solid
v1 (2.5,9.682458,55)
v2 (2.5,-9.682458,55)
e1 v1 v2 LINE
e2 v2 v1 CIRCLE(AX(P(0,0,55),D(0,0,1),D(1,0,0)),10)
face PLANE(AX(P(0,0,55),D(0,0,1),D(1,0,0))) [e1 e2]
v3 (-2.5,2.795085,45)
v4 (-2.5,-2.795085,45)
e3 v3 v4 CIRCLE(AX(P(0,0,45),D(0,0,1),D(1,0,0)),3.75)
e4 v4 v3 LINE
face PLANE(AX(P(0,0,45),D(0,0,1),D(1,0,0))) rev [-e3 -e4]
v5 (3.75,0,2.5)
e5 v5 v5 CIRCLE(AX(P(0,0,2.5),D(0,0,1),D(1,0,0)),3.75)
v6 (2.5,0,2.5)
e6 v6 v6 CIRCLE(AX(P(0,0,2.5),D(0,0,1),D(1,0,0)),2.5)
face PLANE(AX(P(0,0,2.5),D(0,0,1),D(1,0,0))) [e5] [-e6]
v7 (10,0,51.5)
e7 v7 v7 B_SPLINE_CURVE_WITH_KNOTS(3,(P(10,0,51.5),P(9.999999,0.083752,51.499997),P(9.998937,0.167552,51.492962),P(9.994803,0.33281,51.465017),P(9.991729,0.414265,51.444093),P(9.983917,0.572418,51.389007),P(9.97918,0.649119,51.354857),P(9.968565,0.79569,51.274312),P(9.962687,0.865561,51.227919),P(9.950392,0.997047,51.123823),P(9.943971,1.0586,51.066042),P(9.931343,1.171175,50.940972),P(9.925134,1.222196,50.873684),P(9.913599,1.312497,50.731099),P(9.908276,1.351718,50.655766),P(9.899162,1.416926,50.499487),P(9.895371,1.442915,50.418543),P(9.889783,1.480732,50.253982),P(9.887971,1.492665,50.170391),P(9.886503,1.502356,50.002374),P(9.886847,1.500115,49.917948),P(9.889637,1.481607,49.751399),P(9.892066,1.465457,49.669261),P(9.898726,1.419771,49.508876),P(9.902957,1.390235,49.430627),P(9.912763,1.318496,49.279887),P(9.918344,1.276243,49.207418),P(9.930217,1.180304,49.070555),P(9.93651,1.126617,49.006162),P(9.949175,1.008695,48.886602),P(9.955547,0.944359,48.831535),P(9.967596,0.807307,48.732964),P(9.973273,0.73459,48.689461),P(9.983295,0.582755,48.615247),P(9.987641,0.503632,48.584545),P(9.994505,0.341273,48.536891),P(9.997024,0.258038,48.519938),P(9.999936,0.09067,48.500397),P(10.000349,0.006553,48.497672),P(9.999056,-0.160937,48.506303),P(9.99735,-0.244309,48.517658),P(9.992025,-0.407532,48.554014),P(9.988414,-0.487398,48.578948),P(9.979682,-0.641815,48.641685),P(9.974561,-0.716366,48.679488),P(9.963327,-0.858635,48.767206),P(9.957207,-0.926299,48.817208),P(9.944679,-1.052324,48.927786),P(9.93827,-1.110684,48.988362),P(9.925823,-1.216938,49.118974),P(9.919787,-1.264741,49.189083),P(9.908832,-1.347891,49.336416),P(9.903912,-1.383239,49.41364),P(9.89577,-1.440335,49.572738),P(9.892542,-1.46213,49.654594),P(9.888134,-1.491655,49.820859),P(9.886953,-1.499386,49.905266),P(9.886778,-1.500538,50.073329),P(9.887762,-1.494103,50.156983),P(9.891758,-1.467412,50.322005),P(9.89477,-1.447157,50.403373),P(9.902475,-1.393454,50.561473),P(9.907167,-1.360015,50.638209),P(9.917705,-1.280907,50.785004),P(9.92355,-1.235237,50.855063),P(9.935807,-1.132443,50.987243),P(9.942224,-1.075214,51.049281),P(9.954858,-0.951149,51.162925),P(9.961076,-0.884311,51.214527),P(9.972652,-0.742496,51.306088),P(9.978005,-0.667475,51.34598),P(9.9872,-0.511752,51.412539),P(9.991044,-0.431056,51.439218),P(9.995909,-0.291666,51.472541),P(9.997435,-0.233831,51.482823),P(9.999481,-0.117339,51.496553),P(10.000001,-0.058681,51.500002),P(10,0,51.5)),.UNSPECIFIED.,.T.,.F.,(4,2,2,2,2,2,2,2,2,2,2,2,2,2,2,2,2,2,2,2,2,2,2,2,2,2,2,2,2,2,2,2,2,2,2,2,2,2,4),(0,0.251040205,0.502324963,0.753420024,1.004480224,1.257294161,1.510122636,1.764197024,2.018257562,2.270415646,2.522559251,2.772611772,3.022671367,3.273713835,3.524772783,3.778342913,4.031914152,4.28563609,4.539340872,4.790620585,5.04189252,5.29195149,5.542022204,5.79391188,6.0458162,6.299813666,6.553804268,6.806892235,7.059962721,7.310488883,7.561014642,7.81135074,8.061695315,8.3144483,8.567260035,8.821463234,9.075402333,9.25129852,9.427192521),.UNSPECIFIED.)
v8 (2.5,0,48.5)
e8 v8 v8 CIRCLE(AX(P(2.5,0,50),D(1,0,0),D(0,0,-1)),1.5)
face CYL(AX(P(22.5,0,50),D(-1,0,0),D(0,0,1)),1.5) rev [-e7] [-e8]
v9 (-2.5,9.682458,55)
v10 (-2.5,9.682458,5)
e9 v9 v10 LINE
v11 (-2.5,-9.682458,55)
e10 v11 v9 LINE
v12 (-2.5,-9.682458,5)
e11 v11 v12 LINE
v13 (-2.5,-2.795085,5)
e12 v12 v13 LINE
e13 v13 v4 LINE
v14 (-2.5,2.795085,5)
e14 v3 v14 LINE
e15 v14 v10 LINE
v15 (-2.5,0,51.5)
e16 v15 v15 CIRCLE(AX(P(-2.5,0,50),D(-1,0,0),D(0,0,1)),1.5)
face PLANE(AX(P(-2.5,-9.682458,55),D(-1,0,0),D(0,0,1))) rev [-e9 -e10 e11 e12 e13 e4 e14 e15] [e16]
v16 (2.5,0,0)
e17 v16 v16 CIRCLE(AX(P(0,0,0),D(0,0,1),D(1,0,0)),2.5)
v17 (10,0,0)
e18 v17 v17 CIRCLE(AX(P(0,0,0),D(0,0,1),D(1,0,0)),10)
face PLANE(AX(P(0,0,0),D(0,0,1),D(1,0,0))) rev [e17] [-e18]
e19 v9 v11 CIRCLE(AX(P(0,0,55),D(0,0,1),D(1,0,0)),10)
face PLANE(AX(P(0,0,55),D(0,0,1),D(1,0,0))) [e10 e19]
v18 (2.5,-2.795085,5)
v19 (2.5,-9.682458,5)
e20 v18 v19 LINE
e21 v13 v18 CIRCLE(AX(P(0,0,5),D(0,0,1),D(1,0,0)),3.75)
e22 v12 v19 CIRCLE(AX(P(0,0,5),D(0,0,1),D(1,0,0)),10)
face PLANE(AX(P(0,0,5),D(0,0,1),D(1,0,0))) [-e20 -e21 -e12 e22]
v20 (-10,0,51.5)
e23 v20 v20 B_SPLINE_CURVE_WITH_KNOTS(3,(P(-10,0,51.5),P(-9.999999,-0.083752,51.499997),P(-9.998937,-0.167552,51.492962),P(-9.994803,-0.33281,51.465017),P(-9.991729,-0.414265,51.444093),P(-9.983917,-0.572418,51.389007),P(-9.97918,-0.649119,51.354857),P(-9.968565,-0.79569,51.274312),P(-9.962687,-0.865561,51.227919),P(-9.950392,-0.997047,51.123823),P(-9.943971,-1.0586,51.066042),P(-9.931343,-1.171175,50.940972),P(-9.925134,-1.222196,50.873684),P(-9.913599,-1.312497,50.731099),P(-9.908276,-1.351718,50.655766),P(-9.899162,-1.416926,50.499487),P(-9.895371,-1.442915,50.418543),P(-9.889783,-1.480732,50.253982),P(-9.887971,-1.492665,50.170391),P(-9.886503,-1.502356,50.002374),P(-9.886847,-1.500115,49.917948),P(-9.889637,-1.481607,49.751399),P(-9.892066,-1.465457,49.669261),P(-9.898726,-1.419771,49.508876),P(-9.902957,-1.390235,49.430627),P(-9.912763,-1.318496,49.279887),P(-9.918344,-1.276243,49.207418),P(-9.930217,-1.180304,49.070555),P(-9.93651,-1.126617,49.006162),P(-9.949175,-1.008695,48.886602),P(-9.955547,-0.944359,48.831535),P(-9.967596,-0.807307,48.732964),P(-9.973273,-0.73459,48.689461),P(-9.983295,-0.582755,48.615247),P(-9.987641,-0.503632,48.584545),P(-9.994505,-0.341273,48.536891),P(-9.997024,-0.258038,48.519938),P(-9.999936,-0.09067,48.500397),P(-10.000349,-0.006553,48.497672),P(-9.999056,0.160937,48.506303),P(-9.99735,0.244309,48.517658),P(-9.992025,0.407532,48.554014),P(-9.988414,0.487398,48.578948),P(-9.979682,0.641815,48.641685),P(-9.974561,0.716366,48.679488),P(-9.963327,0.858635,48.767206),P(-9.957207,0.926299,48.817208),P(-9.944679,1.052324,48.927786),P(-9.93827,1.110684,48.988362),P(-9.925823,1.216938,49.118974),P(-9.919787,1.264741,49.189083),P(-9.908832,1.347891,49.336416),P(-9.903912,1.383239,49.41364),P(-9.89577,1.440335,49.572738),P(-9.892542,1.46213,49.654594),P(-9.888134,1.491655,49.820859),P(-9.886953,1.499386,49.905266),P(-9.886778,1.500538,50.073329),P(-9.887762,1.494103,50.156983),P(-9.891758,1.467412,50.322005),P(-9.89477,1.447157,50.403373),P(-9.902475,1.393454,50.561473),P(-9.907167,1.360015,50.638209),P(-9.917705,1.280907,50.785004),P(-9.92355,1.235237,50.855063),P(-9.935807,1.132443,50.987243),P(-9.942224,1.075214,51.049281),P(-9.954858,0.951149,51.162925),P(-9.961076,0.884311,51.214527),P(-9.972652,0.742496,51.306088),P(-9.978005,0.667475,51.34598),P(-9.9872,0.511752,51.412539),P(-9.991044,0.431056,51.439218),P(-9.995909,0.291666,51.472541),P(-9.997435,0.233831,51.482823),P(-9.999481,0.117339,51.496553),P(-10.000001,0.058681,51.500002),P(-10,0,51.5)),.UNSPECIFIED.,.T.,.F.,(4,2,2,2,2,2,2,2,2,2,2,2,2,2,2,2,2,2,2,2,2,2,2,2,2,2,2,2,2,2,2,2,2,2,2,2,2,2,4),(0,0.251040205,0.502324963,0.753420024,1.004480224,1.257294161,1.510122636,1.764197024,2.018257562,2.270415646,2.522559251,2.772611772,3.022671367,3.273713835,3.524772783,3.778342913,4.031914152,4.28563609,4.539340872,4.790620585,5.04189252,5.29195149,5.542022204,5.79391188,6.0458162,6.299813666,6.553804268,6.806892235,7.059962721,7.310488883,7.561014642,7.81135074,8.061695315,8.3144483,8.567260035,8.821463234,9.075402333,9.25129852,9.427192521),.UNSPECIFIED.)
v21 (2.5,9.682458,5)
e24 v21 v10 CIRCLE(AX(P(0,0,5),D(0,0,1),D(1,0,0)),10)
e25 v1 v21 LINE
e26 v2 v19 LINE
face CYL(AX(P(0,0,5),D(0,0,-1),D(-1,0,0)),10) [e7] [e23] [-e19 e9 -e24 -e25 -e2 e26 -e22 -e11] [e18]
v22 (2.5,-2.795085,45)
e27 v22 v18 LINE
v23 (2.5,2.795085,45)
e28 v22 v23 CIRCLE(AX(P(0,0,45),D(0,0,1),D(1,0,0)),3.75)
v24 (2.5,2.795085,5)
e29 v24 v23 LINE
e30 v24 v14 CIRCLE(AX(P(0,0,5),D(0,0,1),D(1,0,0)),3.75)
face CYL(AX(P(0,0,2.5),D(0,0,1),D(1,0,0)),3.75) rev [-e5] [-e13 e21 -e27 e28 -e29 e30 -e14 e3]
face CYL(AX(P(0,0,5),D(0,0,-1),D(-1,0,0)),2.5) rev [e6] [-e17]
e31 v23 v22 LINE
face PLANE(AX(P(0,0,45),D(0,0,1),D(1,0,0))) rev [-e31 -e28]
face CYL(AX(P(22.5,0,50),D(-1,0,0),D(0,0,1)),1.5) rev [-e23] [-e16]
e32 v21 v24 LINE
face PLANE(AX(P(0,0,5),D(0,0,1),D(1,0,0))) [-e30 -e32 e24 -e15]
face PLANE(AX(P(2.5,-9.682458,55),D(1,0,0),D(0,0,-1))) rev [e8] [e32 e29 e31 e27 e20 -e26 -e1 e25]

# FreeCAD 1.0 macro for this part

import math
import FreeCAD as App
import Part
import Sketcher
from FreeCAD import Vector
Q = App.Units.Quantity

doc = App.newDocument("Part")
params = doc.addObject("Spreadsheet::Sheet", "Params")
for row, (alias, value) in enumerate([
    ("sketch1_diameter", "20 mm"),
    ("sketch1_diameter2", "5 mm"),
    ("pad1_length", "5 mm"),
    ("sketch2_radius", "10 mm"),
    ("pad2_length", "50 mm"),
    ("sketch3_diameter", "3 mm"),
    ("pocket1_length", "40 mm"),
    ("sketch4_diameter", "7.5 mm"),
    ("pocket2_length", "42.5 mm"),
], start=1):
    params.set(f"A{row}", alias)
    params.set(f"B{row}", "=" + value)
    params.setAlias(f"B{row}", alias)

body = doc.addObject("PartDesign::Body", "Body")

# Sketch on XY plane
sketch1 = doc.addObject("Sketcher::SketchObject", "Sketch")
body.addObject(sketch1)
sketch1.AttachmentSupport = (doc.XY_Plane, [""])
sketch1.MapMode = "FlatFace"
sketch1.addGeometry(Part.Circle(Vector(0, 0, 0), Vector(0, 0, 1), 10), False)
sketch1.addGeometry(Part.Circle(Vector(0, 0, 0), Vector(0, 0, 1), 2.5), False)
sketch1.addConstraint(Sketcher.Constraint("Coincident", 0, 3, -1, 1))
sketch1.addConstraint(Sketcher.Constraint("Coincident", 1, 3, -1, 1))
sketch1.addConstraint(Sketcher.Constraint("Diameter", 0, Q("20 mm")))
sketch1.addConstraint(Sketcher.Constraint("Diameter", 1, Q("5 mm")))
sketch1.setExpression("Constraints[2]", "Params.sketch1_diameter")
sketch1.setExpression("Constraints[3]", "Params.sketch1_diameter2")
pad1 = doc.addObject("PartDesign::Pad", "Pad")
body.addObject(pad1)
pad1.Profile = sketch1
pad1.setExpression("Length", "Params.pad1_length")

# Sketch on XY plane
sketch2 = doc.addObject("Sketcher::SketchObject", "Sketch001")
body.addObject(sketch2)
sketch2.AttachmentSupport = (doc.XY_Plane, [""])
sketch2.MapMode = "FlatFace"
sketch2.AttachmentOffset = App.Placement(Vector(0, 0, 5), App.Rotation())
sketch2.addGeometry(Part.LineSegment(Vector(-2.5, -9.682458, 0), Vector(-2.5, 9.682458, 0)), False)
sketch2.addGeometry(Part.ArcOfCircle(Part.Circle(Vector(0, 0, 0), Vector(0, 0, 1), 10), math.radians(104.477512), math.radians(255.522488)), False)
sketch2.addGeometry(Part.LineSegment(Vector(2.5, 9.682458, 0), Vector(2.5, -9.682458, 0)), False)
sketch2.addGeometry(Part.ArcOfCircle(Part.Circle(Vector(0, 0, 0), Vector(0, 0, 1), 10), math.radians(-75.522488), math.radians(75.522488)), False)
sketch2.addConstraint(Sketcher.Constraint("Coincident", 0, 1, 1, 2))
sketch2.addConstraint(Sketcher.Constraint("Coincident", 1, 1, 0, 2))
sketch2.addConstraint(Sketcher.Constraint("Coincident", 2, 1, 3, 2))
sketch2.addConstraint(Sketcher.Constraint("Coincident", 3, 1, 2, 2))
sketch2.addConstraint(Sketcher.Constraint("Vertical", 0))
sketch2.addConstraint(Sketcher.Constraint("Vertical", 2))
sketch2.addConstraint(Sketcher.Constraint("Coincident", 1, 3, -1, 1))
sketch2.addConstraint(Sketcher.Constraint("Coincident", 3, 3, -1, 1))
sketch2.addConstraint(Sketcher.Constraint("Equal", 1, 3))
sketch2.addConstraint(Sketcher.Constraint("Horizontal", 1, 1, 2, 1))
sketch2.addConstraint(Sketcher.Constraint("Radius", 1, Q("10 mm")))
sketch2.addConstraint(Sketcher.Constraint("DistanceX", 1, 1, 2, 1, Q("5 mm")))
sketch2.setExpression("Constraints[10]", "Params.sketch2_radius")
pad2 = doc.addObject("PartDesign::Pad", "Pad001")
body.addObject(pad2)
pad2.Profile = sketch2
pad2.setExpression("Length", "Params.pad2_length")

# Sketch on YZ plane
sketch3 = doc.addObject("Sketcher::SketchObject", "Sketch002")
body.addObject(sketch3)
sketch3.AttachmentSupport = (doc.YZ_Plane, [""])
sketch3.MapMode = "FlatFace"
sketch3.AttachmentOffset = App.Placement(Vector(0, 0, 2.5), App.Rotation())
sketch3.addGeometry(Part.Circle(Vector(0, 50, 0), Vector(0, 0, 1), 1.5), False)
sketch3.addConstraint(Sketcher.Constraint("PointOnObject", 0, 3, -2))
sketch3.addConstraint(Sketcher.Constraint("Diameter", 0, Q("3 mm")))
sketch3.addConstraint(Sketcher.Constraint("DistanceY", -1, 1, 0, 3, Q("50 mm")))
sketch3.setExpression("Constraints[1]", "Params.sketch3_diameter")
pocket1 = doc.addObject("PartDesign::Pocket", "Pocket")
body.addObject(pocket1)
pocket1.Profile = sketch3
pocket1.setExpression("Length", "Params.pocket1_length")
pocket1.Midplane = True

# Sketch on XY plane
sketch4 = doc.addObject("Sketcher::SketchObject", "Sketch003")
body.addObject(sketch4)
sketch4.AttachmentSupport = (doc.XY_Plane, [""])
sketch4.MapMode = "FlatFace"
sketch4.AttachmentOffset = App.Placement(Vector(0, 0, 45), App.Rotation())
sketch4.addGeometry(Part.Circle(Vector(0, 0, 0), Vector(0, 0, 1), 3.75), False)
sketch4.addConstraint(Sketcher.Constraint("Coincident", 0, 3, -1, 1))
sketch4.addConstraint(Sketcher.Constraint("Diameter", 0, Q("7.5 mm")))
sketch4.setExpression("Constraints[1]", "Params.sketch4_diameter")
pocket2 = doc.addObject("PartDesign::Pocket", "Pocket001")
body.addObject(pocket2)
pocket2.Profile = sketch4
pocket2.setExpression("Length", "Params.pocket2_length")

doc.recompute()
